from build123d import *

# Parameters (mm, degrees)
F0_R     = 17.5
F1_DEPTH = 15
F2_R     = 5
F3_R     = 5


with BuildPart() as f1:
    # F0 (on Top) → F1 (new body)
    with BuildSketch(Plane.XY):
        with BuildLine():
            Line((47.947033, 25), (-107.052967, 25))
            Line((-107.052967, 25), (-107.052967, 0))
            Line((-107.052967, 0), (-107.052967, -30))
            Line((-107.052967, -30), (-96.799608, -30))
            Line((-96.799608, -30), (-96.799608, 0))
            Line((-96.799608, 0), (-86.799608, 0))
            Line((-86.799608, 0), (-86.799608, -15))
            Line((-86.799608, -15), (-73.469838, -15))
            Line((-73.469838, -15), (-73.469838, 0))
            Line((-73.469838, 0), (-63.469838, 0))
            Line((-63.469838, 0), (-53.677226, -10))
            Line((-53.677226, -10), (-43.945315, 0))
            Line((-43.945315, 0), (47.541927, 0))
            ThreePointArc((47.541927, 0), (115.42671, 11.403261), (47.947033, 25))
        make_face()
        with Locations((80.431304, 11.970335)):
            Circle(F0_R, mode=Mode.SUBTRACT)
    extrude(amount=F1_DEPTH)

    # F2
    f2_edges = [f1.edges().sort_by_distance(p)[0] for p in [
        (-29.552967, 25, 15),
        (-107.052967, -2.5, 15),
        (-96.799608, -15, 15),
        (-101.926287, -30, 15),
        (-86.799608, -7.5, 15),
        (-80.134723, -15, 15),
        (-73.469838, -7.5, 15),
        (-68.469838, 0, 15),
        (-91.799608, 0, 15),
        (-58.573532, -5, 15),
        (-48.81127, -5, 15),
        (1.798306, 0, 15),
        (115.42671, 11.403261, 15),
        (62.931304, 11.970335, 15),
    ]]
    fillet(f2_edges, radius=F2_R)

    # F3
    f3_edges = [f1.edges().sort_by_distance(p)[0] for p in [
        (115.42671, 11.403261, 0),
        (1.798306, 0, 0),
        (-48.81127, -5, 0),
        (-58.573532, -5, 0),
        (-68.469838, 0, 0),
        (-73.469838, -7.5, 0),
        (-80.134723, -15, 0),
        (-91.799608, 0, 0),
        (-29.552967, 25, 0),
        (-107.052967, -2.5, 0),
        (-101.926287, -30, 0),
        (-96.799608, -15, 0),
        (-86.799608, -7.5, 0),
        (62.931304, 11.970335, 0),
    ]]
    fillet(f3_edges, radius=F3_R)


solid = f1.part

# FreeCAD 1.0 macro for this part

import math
import FreeCAD as App
import Part
import Sketcher
Q = App.Units.Quantity


def edges_at(feature, points):
    """Names of the edges that pass closest to the given points."""
    edges = feature.Shape.Edges
    near = lambda p: min(range(len(edges)), key=lambda i: edges[i].distToShape(Part.Vertex(*p))[0])
    return sorted({f"Edge{near(p) + 1}" for p in points})

doc = App.newDocument("Part")
body = doc.addObject("PartDesign::Body", "Body")

sketch1 = doc.addObject("Sketcher::SketchObject", "Sketch")
body.addObject(sketch1)
sketch1.AttachmentSupport = (doc.XY_Plane, [""])
sketch1.MapMode = "FlatFace"
sketch1.addGeometry([
    Part.LineSegment(App.Vector(47.947033, 25, 0), App.Vector(-107.052967, 25, 0)),
    Part.LineSegment(App.Vector(-107.052967, 25, 0), App.Vector(-107.052967, -30, 0)),
    Part.LineSegment(App.Vector(-107.052967, -30, 0), App.Vector(-96.799608, -30, 0)),
    Part.LineSegment(App.Vector(-96.799608, -30, 0), App.Vector(-96.799608, 0, 0)),
    Part.LineSegment(App.Vector(-96.799608, 0, 0), App.Vector(-86.799608, 0, 0)),
    Part.LineSegment(App.Vector(-86.799608, 0, 0), App.Vector(-86.799608, -15, 0)),
    Part.LineSegment(App.Vector(-86.799608, -15, 0), App.Vector(-73.469838, -15, 0)),
    Part.LineSegment(App.Vector(-73.469838, -15, 0), App.Vector(-73.469838, 0, 0)),
    Part.LineSegment(App.Vector(-73.469838, 0, 0), App.Vector(-63.469838, 0, 0)),
    Part.LineSegment(App.Vector(-63.469838, 0, 0), App.Vector(-53.677226, -10, 0)),
    Part.LineSegment(App.Vector(-53.677226, -10, 0), App.Vector(-43.945315, 0, 0)),
    Part.LineSegment(App.Vector(-43.945315, 0, 0), App.Vector(47.541927, 0, 0)),
    Part.ArcOfCircle(Part.Circle(App.Vector(80.431304, 11.970335, 0), App.Vector(0, 0, 1), 35), math.radians(-160.000645), math.radians(158.143938)),
    Part.Circle(App.Vector(80.431304, 11.970335, 0), App.Vector(0, 0, 1), 17.5),
], False)
sketch1.addConstraint([
    Sketcher.Constraint("Coincident", 0, 2, 1, 1),
    Sketcher.Constraint("Coincident", 1, 2, 2, 1),
    Sketcher.Constraint("Coincident", 2, 2, 3, 1),
    Sketcher.Constraint("Coincident", 3, 2, 4, 1),
    Sketcher.Constraint("Coincident", 4, 2, 5, 1),
    Sketcher.Constraint("Coincident", 5, 2, 6, 1),
    Sketcher.Constraint("Coincident", 6, 2, 7, 1),
    Sketcher.Constraint("Coincident", 7, 2, 8, 1),
    Sketcher.Constraint("Coincident", 8, 2, 9, 1),
    Sketcher.Constraint("Coincident", 9, 2, 10, 1),
    Sketcher.Constraint("Coincident", 10, 2, 11, 1),
    Sketcher.Constraint("Coincident", 11, 2, 12, 1),
    Sketcher.Constraint("Coincident", 12, 2, 0, 1),
    Sketcher.Constraint("Horizontal", 0),
    Sketcher.Constraint("Vertical", 1),
    Sketcher.Constraint("Horizontal", 2),
    Sketcher.Constraint("Vertical", 3),
    Sketcher.Constraint("Horizontal", 4),
    Sketcher.Constraint("Vertical", 5),
    Sketcher.Constraint("Horizontal", 6),
    Sketcher.Constraint("Vertical", 7),
    Sketcher.Constraint("Horizontal", 8),
    Sketcher.Constraint("Horizontal", 11),
    Sketcher.Constraint("Coincident", 13, 3, 12, 3),
    Sketcher.Constraint("PointOnObject", 3, 2, -1),
    Sketcher.Constraint("PointOnObject", 7, 2, -1),
    Sketcher.Constraint("PointOnObject", 10, 2, -1),
    Sketcher.Constraint("Equal", 4, 8),
    Sketcher.Constraint("Diameter", 13, Q("35 mm")),
    Sketcher.Constraint("Radius", 12, Q("35 mm")),
    Sketcher.Constraint("DistanceX", 0, 2, 0, 1, Q("155 mm")),
    Sketcher.Constraint("DistanceX", 4, 1, 4, 2, Q("10 mm")),
    Sketcher.Constraint("DistanceY", 1, 2, 1, 1, Q("55 mm")),
    Sketcher.Constraint("DistanceY", 3, 1, 3, 2, Q("30 mm")),
    Sketcher.Constraint("DistanceY", 5, 2, 5, 1, Q("15 mm")),
    Sketcher.Constraint("DistanceY", 9, 2, -1, 1, Q("10 mm")),
    Sketcher.Constraint("DistanceX", 2, 1, 2, 2, Q("10.253359 mm")),
    Sketcher.Constraint("DistanceX", 6, 1, 6, 2, Q("13.32977 mm")),
    Sketcher.Constraint("Distance", 9, Q("13.996258 mm")),
    Sketcher.Constraint("DistanceX", 11, 1, 11, 2, Q("91.487242 mm")),
    Sketcher.Constraint("DistanceX", 2, 2, -1, 1, Q("96.799608 mm")),
    Sketcher.Constraint("DistanceX", 0, 2, 12, 3, Q("187.484271 mm")),
])
pad1 = doc.addObject("PartDesign::Pad", "Pad")
body.addObject(pad1)
pad1.Profile = sketch1
pad1.Length = 15
doc.recompute()

fillet = doc.addObject("PartDesign::Fillet", "Fillet")
body.addObject(fillet)
fillet.Base = (pad1, edges_at(pad1, [
    (-29.553, 25, 15),
    (-107.053, -2.5, 15),
    (-96.8, -15, 15),
    (-101.926, -30, 15),
    (-86.8, -7.5, 15),
    (-80.135, -15, 15),
    (-73.47, -7.5, 15),
    (-68.47, 0, 15),
    (-91.8, 0, 15),
    (-58.574, -5, 15),
    (-48.811, -5, 15),
    (1.798, 0, 15),
    (115.427, 11.403, 15),
    (62.931, 11.97, 15),
]))
fillet.Radius = 5
doc.recompute()

fillet2 = doc.addObject("PartDesign::Fillet", "Fillet001")
body.addObject(fillet2)
fillet2.Base = (fillet, edges_at(fillet, [
    (115.427, 11.403, 0),
    (1.798, 0, 0),
    (-48.811, -5, 0),
    (-58.574, -5, 0),
    (-68.47, 0, 0),
    (-73.47, -7.5, 0),
    (-80.135, -15, 0),
    (-91.8, 0, 0),
    (-29.553, 25, 0),
    (-107.053, -2.5, 0),
    (-101.926, -30, 0),
    (-96.8, -15, 0),
    (-86.8, -7.5, 0),
    (62.931, 11.97, 0),
]))
fillet2.Radius = 5

doc.recompute()
